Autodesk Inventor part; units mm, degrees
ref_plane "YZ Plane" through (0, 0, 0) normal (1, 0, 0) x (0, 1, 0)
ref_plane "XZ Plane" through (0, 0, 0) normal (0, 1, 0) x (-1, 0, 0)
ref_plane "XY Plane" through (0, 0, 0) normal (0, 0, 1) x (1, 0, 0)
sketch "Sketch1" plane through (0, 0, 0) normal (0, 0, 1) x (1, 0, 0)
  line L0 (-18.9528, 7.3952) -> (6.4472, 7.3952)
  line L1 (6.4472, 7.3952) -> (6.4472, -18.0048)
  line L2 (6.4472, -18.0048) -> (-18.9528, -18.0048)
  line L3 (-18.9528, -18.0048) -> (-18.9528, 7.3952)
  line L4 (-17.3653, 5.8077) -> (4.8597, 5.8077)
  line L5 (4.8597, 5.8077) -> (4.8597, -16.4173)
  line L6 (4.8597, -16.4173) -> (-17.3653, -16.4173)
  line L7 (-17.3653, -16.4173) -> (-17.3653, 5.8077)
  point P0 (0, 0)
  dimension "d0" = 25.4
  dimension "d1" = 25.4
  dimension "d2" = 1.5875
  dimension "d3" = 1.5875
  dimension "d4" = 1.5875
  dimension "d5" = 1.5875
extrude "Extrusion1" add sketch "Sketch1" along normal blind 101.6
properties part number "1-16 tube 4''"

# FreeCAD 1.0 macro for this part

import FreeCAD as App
import Part
import Sketcher
Q = App.Units.Quantity


def add_polygon(sketch, points):
    """Adds a closed chain of lines whose ends are joined by coincident constraints."""
    first, n = sketch.GeometryCount, len(points)
    for a, b in zip(points, points[1:] + points[:1]):
        sketch.addGeometry(Part.LineSegment(App.Vector(*a, 0), App.Vector(*b, 0)), False)
    for i in range(n):
        sketch.addConstraint(Sketcher.Constraint("Coincident", first + i, 2, first + (i + 1) % n, 1))

doc = App.newDocument("Part")
body = doc.addObject("PartDesign::Body", "Body")

sketch1 = body.newObject("Sketcher::SketchObject", "Sketch")
sketch1.AttachmentSupport = (doc.getObject("XY_Plane"), [""])
sketch1.MapMode = "FlatFace"
add_polygon(sketch1, [(6.4472, 7.3952), (-18.9528, 7.3952), (-18.9528, -18.0048), (6.4472, -18.0048)])
add_polygon(sketch1, [(-17.3653, -16.4173), (-17.3653, 5.8077), (4.8597, 5.8077), (4.8597, -16.4173)])
sketch1.addConstraint(Sketcher.Constraint("Horizontal", 0))
sketch1.addConstraint(Sketcher.Constraint("Vertical", 1))
sketch1.addConstraint(Sketcher.Constraint("Horizontal", 2))
sketch1.addConstraint(Sketcher.Constraint("Vertical", 3))
sketch1.addConstraint(Sketcher.Constraint("Vertical", 4))
sketch1.addConstraint(Sketcher.Constraint("Horizontal", 5))
sketch1.addConstraint(Sketcher.Constraint("Vertical", 6))
sketch1.addConstraint(Sketcher.Constraint("Horizontal", 7))
sketch1.addConstraint(Sketcher.Constraint("Equal", 2, 1))
sketch1.addConstraint(Sketcher.Constraint("Equal", 7, 4))
sketch1.addConstraint(Sketcher.Constraint("DistanceX", 0, 2, 0, 1, Q("1 in")))
sketch1.addConstraint(Sketcher.Constraint("DistanceX", 0, 2, 4, 2, Q("0.0625 in")))
sketch1.addConstraint(Sketcher.Constraint("DistanceY", 4, 2, 0, 2, Q("0.0625 in")))
sketch1.addConstraint(Sketcher.Constraint("DistanceX", 5, 2, 3, 2, Q("0.0625 in")))
sketch1.addConstraint(Sketcher.Constraint("DistanceX", 0, 2, -1, 1, Q("18.9528 mm")))
sketch1.addConstraint(Sketcher.Constraint("DistanceY", -1, 1, 0, 2, Q("7.3952 mm")))
pad1 = body.newObject("PartDesign::Pad", "Pad")
pad1.Profile = sketch1
pad1.Length = Q("4 in")

doc.recompute()
